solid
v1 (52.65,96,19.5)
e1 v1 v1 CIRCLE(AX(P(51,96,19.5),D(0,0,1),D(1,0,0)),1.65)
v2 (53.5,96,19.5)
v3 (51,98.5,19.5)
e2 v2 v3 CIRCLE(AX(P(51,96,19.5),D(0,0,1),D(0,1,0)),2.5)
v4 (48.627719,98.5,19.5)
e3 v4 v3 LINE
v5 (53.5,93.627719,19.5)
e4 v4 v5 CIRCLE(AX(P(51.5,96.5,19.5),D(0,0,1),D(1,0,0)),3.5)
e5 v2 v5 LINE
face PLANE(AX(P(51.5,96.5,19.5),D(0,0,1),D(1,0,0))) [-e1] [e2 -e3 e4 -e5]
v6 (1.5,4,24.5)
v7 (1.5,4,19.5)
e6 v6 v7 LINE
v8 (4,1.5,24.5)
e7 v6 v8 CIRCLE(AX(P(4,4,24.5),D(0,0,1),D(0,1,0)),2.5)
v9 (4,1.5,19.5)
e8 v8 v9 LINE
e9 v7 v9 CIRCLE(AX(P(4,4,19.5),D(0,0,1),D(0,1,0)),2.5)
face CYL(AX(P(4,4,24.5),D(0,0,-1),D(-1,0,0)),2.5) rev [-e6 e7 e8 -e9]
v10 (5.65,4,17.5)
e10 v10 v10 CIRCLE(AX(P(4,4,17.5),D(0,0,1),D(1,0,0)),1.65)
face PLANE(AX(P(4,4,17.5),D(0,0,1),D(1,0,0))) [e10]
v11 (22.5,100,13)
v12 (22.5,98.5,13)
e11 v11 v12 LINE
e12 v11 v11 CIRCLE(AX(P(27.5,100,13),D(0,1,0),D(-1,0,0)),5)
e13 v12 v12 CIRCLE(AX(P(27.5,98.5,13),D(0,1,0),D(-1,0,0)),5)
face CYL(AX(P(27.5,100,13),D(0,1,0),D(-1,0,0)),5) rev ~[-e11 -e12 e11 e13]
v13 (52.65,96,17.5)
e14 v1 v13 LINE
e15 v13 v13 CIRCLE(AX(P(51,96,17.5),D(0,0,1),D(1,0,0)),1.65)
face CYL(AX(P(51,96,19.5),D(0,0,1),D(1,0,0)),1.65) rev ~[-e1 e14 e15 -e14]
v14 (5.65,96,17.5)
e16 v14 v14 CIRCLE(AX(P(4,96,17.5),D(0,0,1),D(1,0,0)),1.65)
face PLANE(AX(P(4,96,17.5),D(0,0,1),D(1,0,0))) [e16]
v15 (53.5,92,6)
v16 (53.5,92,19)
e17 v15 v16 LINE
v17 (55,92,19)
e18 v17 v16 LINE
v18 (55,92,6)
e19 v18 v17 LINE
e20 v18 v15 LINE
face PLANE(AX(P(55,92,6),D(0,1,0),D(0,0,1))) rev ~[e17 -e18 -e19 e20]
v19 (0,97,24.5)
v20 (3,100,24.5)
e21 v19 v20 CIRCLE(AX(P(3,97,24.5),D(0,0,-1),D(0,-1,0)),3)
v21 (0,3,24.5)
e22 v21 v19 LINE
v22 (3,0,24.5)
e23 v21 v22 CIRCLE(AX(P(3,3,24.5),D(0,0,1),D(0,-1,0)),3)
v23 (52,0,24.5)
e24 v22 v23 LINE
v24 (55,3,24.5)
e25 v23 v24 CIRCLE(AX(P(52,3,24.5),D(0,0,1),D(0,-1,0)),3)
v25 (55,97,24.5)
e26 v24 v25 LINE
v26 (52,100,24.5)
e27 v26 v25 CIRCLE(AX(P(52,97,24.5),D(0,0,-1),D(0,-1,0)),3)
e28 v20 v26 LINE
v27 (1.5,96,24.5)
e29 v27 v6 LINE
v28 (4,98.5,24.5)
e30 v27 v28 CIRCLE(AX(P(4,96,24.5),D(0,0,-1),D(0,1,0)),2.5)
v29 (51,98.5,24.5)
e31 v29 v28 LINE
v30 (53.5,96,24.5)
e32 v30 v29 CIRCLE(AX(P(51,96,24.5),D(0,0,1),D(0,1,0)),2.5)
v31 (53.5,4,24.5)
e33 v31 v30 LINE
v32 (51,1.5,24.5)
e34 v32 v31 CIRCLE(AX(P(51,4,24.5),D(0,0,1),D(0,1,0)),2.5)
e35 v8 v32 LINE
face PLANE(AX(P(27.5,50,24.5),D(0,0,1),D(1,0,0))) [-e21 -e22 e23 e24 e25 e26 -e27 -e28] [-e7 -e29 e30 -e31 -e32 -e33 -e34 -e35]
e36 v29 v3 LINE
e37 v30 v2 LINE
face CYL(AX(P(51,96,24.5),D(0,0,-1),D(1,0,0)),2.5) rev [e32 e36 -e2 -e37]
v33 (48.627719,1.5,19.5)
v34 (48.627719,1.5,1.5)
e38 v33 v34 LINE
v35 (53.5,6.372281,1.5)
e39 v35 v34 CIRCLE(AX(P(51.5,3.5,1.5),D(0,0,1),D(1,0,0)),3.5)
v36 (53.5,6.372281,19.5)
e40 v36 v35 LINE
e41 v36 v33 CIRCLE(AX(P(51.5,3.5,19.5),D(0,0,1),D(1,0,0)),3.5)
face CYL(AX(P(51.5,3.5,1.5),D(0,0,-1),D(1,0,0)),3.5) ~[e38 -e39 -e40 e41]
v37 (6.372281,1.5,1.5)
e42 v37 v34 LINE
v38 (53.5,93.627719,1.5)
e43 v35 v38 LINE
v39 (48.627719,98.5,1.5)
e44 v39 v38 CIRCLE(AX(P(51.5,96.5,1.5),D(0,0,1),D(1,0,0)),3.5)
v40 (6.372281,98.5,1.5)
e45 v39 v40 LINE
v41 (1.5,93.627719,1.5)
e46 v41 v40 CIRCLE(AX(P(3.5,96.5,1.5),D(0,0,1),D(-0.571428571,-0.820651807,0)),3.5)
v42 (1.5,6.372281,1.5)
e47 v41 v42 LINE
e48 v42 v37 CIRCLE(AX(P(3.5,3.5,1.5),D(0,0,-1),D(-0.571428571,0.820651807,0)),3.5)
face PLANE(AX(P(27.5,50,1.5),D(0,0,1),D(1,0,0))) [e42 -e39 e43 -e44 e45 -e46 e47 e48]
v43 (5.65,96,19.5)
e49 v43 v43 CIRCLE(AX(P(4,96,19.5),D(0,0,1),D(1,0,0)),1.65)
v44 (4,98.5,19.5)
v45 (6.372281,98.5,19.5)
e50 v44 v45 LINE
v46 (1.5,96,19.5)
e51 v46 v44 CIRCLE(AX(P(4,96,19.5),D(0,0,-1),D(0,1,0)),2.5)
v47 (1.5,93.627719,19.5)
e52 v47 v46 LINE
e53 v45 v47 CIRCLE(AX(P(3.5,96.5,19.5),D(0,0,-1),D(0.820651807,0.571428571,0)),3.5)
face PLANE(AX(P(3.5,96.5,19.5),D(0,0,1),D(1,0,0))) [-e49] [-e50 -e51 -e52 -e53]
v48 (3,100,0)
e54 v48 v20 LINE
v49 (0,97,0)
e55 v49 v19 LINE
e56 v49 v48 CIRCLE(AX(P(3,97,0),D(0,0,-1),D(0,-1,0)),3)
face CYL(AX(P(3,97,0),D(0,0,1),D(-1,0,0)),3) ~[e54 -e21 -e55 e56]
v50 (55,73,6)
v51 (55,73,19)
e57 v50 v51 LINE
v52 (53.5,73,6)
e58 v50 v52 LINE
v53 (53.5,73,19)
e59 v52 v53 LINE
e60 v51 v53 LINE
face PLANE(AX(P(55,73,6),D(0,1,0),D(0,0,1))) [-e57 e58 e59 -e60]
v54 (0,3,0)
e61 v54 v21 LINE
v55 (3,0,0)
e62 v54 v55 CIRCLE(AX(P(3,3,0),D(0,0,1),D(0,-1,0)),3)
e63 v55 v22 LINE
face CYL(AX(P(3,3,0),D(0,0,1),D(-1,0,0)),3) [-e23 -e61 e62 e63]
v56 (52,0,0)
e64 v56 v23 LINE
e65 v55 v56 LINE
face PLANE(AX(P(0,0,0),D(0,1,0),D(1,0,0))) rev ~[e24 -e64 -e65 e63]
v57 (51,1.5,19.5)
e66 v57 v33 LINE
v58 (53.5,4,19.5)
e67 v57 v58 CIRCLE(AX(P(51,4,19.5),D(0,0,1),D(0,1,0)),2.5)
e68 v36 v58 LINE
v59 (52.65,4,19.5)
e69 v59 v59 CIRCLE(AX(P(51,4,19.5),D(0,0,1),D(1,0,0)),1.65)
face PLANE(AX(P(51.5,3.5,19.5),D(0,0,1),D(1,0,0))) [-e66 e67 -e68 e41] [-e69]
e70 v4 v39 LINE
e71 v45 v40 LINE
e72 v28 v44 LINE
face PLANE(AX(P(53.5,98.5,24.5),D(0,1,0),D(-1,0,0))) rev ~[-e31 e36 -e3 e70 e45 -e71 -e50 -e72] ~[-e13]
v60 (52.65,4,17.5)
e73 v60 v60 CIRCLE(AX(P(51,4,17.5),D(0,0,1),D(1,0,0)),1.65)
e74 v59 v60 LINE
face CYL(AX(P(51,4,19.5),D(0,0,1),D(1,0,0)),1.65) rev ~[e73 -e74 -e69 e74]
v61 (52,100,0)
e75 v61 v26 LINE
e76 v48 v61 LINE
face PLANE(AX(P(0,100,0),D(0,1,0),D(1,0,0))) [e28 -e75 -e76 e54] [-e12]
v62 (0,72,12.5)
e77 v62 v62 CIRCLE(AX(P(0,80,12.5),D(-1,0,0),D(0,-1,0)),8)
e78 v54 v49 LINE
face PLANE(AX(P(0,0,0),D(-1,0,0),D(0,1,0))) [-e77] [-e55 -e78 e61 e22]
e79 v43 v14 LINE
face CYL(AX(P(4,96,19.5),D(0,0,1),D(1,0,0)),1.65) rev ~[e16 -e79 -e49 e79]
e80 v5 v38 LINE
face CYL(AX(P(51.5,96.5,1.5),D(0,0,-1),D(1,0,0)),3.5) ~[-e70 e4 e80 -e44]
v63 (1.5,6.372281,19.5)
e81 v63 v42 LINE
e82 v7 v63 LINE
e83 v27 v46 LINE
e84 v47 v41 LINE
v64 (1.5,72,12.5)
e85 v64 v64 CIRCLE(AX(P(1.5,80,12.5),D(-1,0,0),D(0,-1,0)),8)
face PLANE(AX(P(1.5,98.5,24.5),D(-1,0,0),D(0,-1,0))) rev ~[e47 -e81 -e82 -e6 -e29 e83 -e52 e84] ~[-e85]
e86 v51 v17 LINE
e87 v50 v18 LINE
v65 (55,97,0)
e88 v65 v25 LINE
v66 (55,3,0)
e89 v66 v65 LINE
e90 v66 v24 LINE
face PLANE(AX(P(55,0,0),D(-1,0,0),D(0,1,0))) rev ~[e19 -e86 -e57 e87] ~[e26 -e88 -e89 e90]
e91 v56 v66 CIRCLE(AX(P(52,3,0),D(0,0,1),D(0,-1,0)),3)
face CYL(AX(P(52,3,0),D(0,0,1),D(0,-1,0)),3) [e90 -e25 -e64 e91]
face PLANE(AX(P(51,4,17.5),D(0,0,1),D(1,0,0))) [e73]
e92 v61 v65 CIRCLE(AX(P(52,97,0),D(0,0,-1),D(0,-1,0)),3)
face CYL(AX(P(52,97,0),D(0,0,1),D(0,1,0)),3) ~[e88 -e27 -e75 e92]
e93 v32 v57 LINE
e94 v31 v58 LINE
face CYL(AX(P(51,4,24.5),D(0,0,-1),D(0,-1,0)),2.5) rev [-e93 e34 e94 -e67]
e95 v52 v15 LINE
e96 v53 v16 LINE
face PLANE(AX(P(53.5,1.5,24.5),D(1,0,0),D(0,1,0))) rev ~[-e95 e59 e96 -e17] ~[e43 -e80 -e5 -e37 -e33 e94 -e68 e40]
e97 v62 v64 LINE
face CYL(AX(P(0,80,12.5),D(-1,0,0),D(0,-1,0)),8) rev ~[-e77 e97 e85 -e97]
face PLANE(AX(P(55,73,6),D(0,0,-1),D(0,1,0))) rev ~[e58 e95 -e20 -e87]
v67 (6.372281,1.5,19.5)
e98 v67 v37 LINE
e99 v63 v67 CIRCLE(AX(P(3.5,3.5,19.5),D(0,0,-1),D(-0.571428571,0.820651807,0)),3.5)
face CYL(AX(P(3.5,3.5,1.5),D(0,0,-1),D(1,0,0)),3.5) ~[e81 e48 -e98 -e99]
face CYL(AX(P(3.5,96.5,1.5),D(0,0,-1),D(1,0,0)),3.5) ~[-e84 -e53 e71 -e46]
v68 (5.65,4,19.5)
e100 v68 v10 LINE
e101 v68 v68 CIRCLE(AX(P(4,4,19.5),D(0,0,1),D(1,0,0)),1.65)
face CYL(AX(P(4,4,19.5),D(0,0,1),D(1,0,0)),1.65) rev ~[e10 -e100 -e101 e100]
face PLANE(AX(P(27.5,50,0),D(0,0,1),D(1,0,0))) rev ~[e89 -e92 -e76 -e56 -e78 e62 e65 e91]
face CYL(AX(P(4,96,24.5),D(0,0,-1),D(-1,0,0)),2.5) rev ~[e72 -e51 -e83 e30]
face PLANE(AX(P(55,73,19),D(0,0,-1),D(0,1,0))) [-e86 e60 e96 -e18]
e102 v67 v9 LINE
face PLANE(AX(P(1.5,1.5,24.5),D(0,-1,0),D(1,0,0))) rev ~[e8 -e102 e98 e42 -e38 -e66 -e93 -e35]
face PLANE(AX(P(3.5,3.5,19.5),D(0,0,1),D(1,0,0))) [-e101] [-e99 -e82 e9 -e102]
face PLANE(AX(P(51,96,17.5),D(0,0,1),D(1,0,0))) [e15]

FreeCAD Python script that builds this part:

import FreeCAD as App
import Part
import Sketcher
from FreeCAD import Vector
Q = App.Units.Quantity


def edges_at(feature, points):
    """Names of the edges that pass closest to the given points."""
    edges = feature.Shape.Edges
    near = lambda p: min(range(len(edges)), key=lambda i: edges[i].distToShape(Part.Vertex(*p))[0])
    return sorted({f"Edge{near(p) + 1}" for p in points})


def add_polygon(sketch, points):
    """Adds a closed chain of lines whose ends are joined by coincident constraints."""
    first, n = sketch.GeometryCount, len(points)
    for a, b in zip(points, points[1:] + points[:1]):
        sketch.addGeometry(Part.LineSegment(App.Vector(*a, 0), App.Vector(*b, 0)), False)
    for i in range(n):
        sketch.addConstraint(Sketcher.Constraint("Coincident", first + i, 2, first + (i + 1) % n, 1))

doc = App.newDocument("Part")
body = doc.addObject("PartDesign::Body", "Body")

sketch1 = body.newObject("Sketcher::SketchObject", "Sketch")
sketch1.AttachmentSupport = (doc.getObject("XY_Plane"), [""])
sketch1.MapMode = "FlatFace"
add_polygon(sketch1, [(0, 100), (0, 0), (55, 0), (55, 100)])
sketch1.addConstraint(Sketcher.Constraint("Vertical", 0))
sketch1.addConstraint(Sketcher.Constraint("Horizontal", 1))
sketch1.addConstraint(Sketcher.Constraint("Vertical", 2))
sketch1.addConstraint(Sketcher.Constraint("Horizontal", 3))
sketch1.addConstraint(Sketcher.Constraint("Coincident", 0, 2, -1, 1))
sketch1.addConstraint(Sketcher.Constraint("DistanceX", 1, 1, 1, 2, Q("55 mm")))
sketch1.addConstraint(Sketcher.Constraint("DistanceY", 0, 2, 0, 1, Q("100 mm")))
pad1 = body.newObject("PartDesign::Pad", "Pad")
pad1.Profile = sketch1
pad1.Length = 24.5

sketch2 = body.newObject("Sketcher::SketchObject", "Sketch001")
sketch2.AttachmentSupport = (doc.getObject("XY_Plane"), [""])
sketch2.MapMode = "FlatFace"
sketch2.AttachmentOffset = App.Placement(Vector(0, 0, 24.5), App.Rotation())
add_polygon(sketch2, [(1.5, 98.5), (1.5, 1.5), (53.5, 1.5), (53.5, 98.5)])
sketch2.addConstraint(Sketcher.Constraint("Vertical", 0))
sketch2.addConstraint(Sketcher.Constraint("Horizontal", 1))
sketch2.addConstraint(Sketcher.Constraint("Vertical", 2))
sketch2.addConstraint(Sketcher.Constraint("Horizontal", 3))
sketch2.addConstraint(Sketcher.Constraint("DistanceX", 1, 1, 1, 2, Q("52 mm")))
sketch2.addConstraint(Sketcher.Constraint("DistanceY", 0, 2, 0, 1, Q("97 mm")))
sketch2.addConstraint(Sketcher.Constraint("DistanceX", -1, 1, 0, 2, Q("1.5 mm")))
sketch2.addConstraint(Sketcher.Constraint("DistanceY", -1, 1, 0, 2, Q("1.5 mm")))
pocket1 = body.newObject("PartDesign::Pocket", "Pocket")
pocket1.Profile = sketch2
pocket1.Length = 23

sketch3 = body.newObject("Sketcher::SketchObject", "Sketch002")
sketch3.AttachmentSupport = (doc.getObject("XZ_Plane"), [""])
sketch3.MapMode = "FlatFace"
sketch3.AttachmentOffset = App.Placement(Vector(0, 0, -100), App.Rotation())
sketch3.addGeometry(Part.Circle(Vector(27.5, 13, 0), Vector(0, 0, 1), 5), False)
sketch3.addConstraint(Sketcher.Constraint("Diameter", 0, Q("10 mm")))
sketch3.addConstraint(Sketcher.Constraint("DistanceY", -1, 1, 0, 3, Q("13 mm")))
sketch3.addConstraint(Sketcher.Constraint("DistanceX", -1, 1, 0, 3, Q("27.5 mm")))
pocket2 = body.newObject("PartDesign::Pocket", "Pocket001")
pocket2.Profile = sketch3
pocket2.Length = 2
pocket2.Reversed = True

sketch4 = body.newObject("Sketcher::SketchObject", "Sketch003")
sketch4.AttachmentSupport = (doc.getObject("YZ_Plane"), [""])
sketch4.MapMode = "FlatFace"
sketch4.addGeometry(Part.Circle(Vector(80, 12.5, 0), Vector(0, 0, 1), 8), False)
sketch4.addConstraint(Sketcher.Constraint("Diameter", 0, Q("16 mm")))
sketch4.addConstraint(Sketcher.Constraint("DistanceX", -1, 1, 0, 3, Q("80 mm")))
sketch4.addConstraint(Sketcher.Constraint("DistanceY", -1, 1, 0, 3, Q("12.5 mm")))
pocket3 = body.newObject("PartDesign::Pocket", "Pocket002")
pocket3.Profile = sketch4
pocket3.Length = 2
pocket3.Reversed = True

sketch5 = body.newObject("Sketcher::SketchObject", "Sketch004")
sketch5.AttachmentSupport = (doc.getObject("XY_Plane"), [""])
sketch5.MapMode = "FlatFace"
sketch5.AttachmentOffset = App.Placement(Vector(0, 0, 1.5), App.Rotation())
sketch5.addGeometry(Part.Circle(Vector(3.5, 96.5, 0), Vector(0, 0, 1), 3.5), False)
sketch5.addGeometry(Part.Circle(Vector(51.5, 96.5, 0), Vector(0, 0, 1), 3.5), False)
sketch5.addGeometry(Part.Circle(Vector(51.5, 3.5, 0), Vector(0, 0, 1), 3.5), False)
sketch5.addGeometry(Part.Circle(Vector(3.5, 3.5, 0), Vector(0, 0, 1), 3.5), False)
sketch5.addConstraint(Sketcher.Constraint("Equal", 0, 1))
sketch5.addConstraint(Sketcher.Constraint("Equal", 1, 2))
sketch5.addConstraint(Sketcher.Constraint("Equal", 2, 3))
sketch5.addConstraint(Sketcher.Constraint("Horizontal", 0, 3, 1, 3))
sketch5.addConstraint(Sketcher.Constraint("Horizontal", 2, 3, 3, 3))
sketch5.addConstraint(Sketcher.Constraint("Vertical", 1, 3, 2, 3))
sketch5.addConstraint(Sketcher.Constraint("Vertical", 0, 3, 3, 3))
sketch5.addConstraint(Sketcher.Constraint("Diameter", 0, Q("7 mm")))
sketch5.addConstraint(Sketcher.Constraint("DistanceX", 0, 3, 1, 3, Q("48 mm")))
sketch5.addConstraint(Sketcher.Constraint("DistanceY", 2, 3, 1, 3, Q("93 mm")))
sketch5.addConstraint(Sketcher.Constraint("DistanceX", -1, 1, 0, 3, Q("3.5 mm")))
sketch5.addConstraint(Sketcher.Constraint("DistanceY", -1, 1, 0, 3, Q("96.5 mm")))
pad2 = body.newObject("PartDesign::Pad", "Pad001")
pad2.Profile = sketch5
pad2.Length = 18

sketch6 = body.newObject("Sketcher::SketchObject", "Sketch005")
sketch6.AttachmentSupport = (doc.getObject("XY_Plane"), [""])
sketch6.MapMode = "FlatFace"
sketch6.AttachmentOffset = App.Placement(Vector(0, 0, 19.5), App.Rotation())
sketch6.addGeometry(Part.Circle(Vector(4, 96, 0), Vector(0, 0, 1), 1.65), False)
sketch6.addGeometry(Part.Circle(Vector(4, 4, 0), Vector(0, 0, 1), 1.65), False)
sketch6.addGeometry(Part.Circle(Vector(51, 96, 0), Vector(0, 0, 1), 1.65), False)
sketch6.addGeometry(Part.Circle(Vector(51, 4, 0), Vector(0, 0, 1), 1.65), False)
sketch6.addConstraint(Sketcher.Constraint("Equal", 0, 1))
sketch6.addConstraint(Sketcher.Constraint("Equal", 1, 2))
sketch6.addConstraint(Sketcher.Constraint("Equal", 2, 3))
sketch6.addConstraint(Sketcher.Constraint("Horizontal", 0, 3, 2, 3))
sketch6.addConstraint(Sketcher.Constraint("Horizontal", 1, 3, 3, 3))
sketch6.addConstraint(Sketcher.Constraint("Vertical", 0, 3, 1, 3))
sketch6.addConstraint(Sketcher.Constraint("Vertical", 2, 3, 3, 3))
sketch6.addConstraint(Sketcher.Constraint("Diameter", 0, Q("3.3 mm")))
sketch6.addConstraint(Sketcher.Constraint("DistanceX", -1, 1, 0, 3, Q("4 mm")))
sketch6.addConstraint(Sketcher.Constraint("DistanceY", -1, 1, 0, 3, Q("96 mm")))
sketch6.addConstraint(Sketcher.Constraint("DistanceY", -1, 1, 1, 3, Q("4 mm")))
sketch6.addConstraint(Sketcher.Constraint("DistanceX", -1, 1, 2, 3, Q("51 mm")))
pocket4 = body.newObject("PartDesign::Pocket", "Pocket003")
pocket4.Profile = sketch6
pocket4.Length = 2
doc.recompute()

fillet = body.newObject("PartDesign::Fillet", "Fillet")
fillet.Base = (pocket4, edges_at(pocket4, [
    (0, 100, 12.25),
    (55, 100, 12.25),
    (0, 0, 12.25),
    (55, 0, 12.25),
]))
fillet.Radius = 3
doc.recompute()

fillet2 = body.newObject("PartDesign::Fillet", "Fillet001")
fillet2.Base = (fillet, edges_at(fillet, [
    (1.5, 98.5, 22),
    (53.5, 98.5, 22),
    (1.5, 1.5, 22),
    (53.5, 1.5, 22),
]))
fillet2.Radius = 2.5

sketch7 = body.newObject("Sketcher::SketchObject", "Sketch006")
sketch7.AttachmentSupport = (doc.getObject("YZ_Plane"), [""])
sketch7.MapMode = "FlatFace"
sketch7.AttachmentOffset = App.Placement(Vector(0, 0, 55), App.Rotation())
add_polygon(sketch7, [(73, 19), (73, 6), (92, 6), (92, 19)])
sketch7.addConstraint(Sketcher.Constraint("Vertical", 0))
sketch7.addConstraint(Sketcher.Constraint("Horizontal", 1))
sketch7.addConstraint(Sketcher.Constraint("Vertical", 2))
sketch7.addConstraint(Sketcher.Constraint("Horizontal", 3))
sketch7.addConstraint(Sketcher.Constraint("DistanceX", 1, 1, 1, 2, Q("19 mm")))
sketch7.addConstraint(Sketcher.Constraint("DistanceY", 0, 2, 0, 1, Q("13 mm")))
sketch7.addConstraint(Sketcher.Constraint("DistanceX", -1, 1, 0, 2, Q("73 mm")))
sketch7.addConstraint(Sketcher.Constraint("DistanceY", -1, 1, 0, 2, Q("6 mm")))
pocket5 = body.newObject("PartDesign::Pocket", "Pocket004")
pocket5.Profile = sketch7
pocket5.Length = 2

doc.recompute()
